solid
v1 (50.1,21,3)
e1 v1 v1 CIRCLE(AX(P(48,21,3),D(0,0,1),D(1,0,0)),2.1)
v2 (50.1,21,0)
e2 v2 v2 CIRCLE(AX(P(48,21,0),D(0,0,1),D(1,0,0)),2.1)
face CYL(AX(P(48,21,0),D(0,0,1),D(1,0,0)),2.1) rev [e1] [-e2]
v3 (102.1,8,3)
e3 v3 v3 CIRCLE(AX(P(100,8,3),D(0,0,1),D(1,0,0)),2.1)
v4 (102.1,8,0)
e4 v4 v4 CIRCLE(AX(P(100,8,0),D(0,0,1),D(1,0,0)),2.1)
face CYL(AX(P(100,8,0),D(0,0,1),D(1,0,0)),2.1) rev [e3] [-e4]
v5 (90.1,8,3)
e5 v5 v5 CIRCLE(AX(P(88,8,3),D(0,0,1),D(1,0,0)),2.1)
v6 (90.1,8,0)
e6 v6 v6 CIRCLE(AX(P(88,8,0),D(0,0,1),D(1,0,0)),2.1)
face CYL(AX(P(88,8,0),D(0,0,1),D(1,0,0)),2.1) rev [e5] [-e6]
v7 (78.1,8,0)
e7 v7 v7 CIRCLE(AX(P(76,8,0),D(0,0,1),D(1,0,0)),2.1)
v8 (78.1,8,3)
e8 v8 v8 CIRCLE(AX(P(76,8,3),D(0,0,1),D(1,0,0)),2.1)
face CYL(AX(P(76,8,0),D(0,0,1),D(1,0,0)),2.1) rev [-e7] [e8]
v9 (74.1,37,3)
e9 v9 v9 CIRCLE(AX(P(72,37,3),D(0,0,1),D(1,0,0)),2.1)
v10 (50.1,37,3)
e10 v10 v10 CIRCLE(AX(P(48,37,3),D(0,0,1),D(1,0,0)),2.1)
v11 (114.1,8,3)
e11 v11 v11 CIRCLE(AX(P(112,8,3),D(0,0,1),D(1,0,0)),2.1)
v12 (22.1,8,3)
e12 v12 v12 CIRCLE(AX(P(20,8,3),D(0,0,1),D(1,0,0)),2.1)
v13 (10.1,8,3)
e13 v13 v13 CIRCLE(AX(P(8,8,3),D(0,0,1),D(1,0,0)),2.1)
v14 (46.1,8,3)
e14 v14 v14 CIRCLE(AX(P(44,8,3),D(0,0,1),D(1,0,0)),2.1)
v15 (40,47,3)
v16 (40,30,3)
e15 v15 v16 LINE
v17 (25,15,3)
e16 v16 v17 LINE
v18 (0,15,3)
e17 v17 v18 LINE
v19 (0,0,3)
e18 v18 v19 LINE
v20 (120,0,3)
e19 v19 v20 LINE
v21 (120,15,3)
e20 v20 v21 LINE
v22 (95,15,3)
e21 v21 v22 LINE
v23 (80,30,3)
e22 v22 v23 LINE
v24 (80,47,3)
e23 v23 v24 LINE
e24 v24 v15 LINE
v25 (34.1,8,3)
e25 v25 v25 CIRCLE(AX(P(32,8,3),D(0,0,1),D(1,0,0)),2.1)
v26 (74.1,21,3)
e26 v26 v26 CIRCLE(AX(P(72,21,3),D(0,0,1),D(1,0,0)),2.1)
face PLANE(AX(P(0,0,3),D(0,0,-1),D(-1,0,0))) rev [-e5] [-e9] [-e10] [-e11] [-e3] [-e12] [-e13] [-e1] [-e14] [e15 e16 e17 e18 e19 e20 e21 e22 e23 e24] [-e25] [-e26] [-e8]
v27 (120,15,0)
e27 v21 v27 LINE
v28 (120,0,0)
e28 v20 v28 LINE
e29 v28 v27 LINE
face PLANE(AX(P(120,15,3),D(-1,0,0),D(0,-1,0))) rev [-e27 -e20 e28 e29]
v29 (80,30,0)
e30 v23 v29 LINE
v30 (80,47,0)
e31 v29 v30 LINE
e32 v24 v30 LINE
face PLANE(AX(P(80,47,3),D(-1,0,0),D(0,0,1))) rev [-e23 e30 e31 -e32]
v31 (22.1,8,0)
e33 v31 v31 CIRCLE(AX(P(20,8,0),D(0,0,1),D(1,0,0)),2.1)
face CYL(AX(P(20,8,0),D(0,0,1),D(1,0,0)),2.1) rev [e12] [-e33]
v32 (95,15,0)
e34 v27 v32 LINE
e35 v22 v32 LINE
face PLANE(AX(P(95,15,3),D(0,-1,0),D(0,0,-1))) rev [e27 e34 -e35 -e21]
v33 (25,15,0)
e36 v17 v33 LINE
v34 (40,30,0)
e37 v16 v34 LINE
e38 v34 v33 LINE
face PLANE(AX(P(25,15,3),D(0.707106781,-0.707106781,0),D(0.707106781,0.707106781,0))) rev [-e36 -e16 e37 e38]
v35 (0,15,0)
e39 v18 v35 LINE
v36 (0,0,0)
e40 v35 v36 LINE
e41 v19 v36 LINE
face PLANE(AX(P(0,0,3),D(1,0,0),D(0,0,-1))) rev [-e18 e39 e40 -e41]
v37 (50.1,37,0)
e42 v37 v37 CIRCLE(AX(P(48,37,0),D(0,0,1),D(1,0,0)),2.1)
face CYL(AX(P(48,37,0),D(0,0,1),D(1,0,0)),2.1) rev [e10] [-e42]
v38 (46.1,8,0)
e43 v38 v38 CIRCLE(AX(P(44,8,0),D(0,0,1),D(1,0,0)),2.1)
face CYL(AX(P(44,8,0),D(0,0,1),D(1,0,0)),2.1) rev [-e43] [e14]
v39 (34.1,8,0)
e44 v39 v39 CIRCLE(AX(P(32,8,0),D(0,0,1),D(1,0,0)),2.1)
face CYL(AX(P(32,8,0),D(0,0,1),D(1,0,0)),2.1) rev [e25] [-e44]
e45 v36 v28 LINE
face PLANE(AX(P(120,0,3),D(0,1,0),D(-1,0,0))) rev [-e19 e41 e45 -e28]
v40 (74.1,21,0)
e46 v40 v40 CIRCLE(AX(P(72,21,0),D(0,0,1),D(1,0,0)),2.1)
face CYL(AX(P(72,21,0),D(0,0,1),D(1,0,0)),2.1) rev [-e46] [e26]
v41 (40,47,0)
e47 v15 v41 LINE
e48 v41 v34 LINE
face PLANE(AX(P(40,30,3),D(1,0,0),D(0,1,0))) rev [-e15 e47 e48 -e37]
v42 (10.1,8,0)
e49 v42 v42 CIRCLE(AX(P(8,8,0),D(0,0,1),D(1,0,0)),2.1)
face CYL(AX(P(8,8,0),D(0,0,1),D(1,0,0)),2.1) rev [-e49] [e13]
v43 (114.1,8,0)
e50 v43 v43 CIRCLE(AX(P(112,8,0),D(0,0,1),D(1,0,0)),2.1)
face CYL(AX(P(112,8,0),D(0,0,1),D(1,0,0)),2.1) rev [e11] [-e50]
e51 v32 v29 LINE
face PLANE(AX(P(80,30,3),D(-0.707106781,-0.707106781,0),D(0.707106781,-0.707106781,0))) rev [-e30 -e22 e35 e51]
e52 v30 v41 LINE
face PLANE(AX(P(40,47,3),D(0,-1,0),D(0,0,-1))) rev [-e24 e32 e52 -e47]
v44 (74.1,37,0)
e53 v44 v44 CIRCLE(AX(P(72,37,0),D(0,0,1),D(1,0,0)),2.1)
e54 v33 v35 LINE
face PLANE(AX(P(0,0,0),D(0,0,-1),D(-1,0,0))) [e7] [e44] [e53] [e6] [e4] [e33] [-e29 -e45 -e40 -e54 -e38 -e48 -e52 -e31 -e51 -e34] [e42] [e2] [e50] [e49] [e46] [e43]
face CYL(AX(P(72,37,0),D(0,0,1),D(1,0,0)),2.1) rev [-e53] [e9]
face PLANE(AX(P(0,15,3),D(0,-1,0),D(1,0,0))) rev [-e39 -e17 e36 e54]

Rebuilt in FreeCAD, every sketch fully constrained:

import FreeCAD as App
import Part
import Sketcher

V = App.Vector
Q = App.Units.Quantity


def add_polygon(sketch, points):
    """Adds a closed chain of lines whose ends are joined by coincident constraints."""
    first, n = sketch.GeometryCount, len(points)
    for a, b in zip(points, points[1:] + points[:1]):
        sketch.addGeometry(Part.LineSegment(App.Vector(*a, 0), App.Vector(*b, 0)), False)
    for i in range(n):
        sketch.addConstraint(Sketcher.Constraint("Coincident", first + i, 2, first + (i + 1) % n, 1))

doc = App.newDocument("Part")
body = doc.addObject("PartDesign::Body", "Body")

# Sketch on XY plane
sketch1 = body.newObject("Sketcher::SketchObject", "Sketch")
sketch1.AttachmentSupport = (doc.getObject("XY_Plane"), [""])
sketch1.MapMode = "FlatFace"
add_polygon(sketch1, [(0, 15), (0, 0), (120, 0), (120, 15), (95, 15), (80, 30), (80, 47), (40, 47), (40, 30), (25, 15)])  # lines 0-9
sketch1.addConstraint([
    Sketcher.Constraint("Vertical", 0),
    Sketcher.Constraint("Horizontal", 1),
    Sketcher.Constraint("Vertical", 2),
    Sketcher.Constraint("Horizontal", 3),
    Sketcher.Constraint("Vertical", 5),
    Sketcher.Constraint("Horizontal", 6),
    Sketcher.Constraint("Vertical", 7),
    Sketcher.Constraint("Horizontal", 9),
    Sketcher.Constraint("Coincident", 0, 2, -1, 1),
    Sketcher.Constraint("Perpendicular", 4, 8),
    Sketcher.Constraint("Horizontal", 4, 2, 7, 2),
    Sketcher.Constraint("Horizontal", 3, 2, 8, 2),
    Sketcher.Constraint("Equal", 3, 9),
    Sketcher.Constraint("Equal", 4, 8),
    Sketcher.Constraint("DistanceX", 1, 1, 1, 2, Q("120 mm")),
    Sketcher.Constraint("DistanceX", 3, 2, 3, 1, Q("25 mm")),
    Sketcher.Constraint("DistanceX", 6, 2, 6, 1, Q("40 mm")),
    Sketcher.Constraint("DistanceY", 0, 2, 0, 1, Q("15 mm")),
    Sketcher.Constraint("DistanceY", 5, 1, 5, 2, Q("17 mm")),
])
pad1 = body.newObject("PartDesign::Pad", "Pad")
pad1.Profile = sketch1
pad1.Length = 3

# Sketch on XY plane
sketch2 = body.newObject("Sketcher::SketchObject", "Sketch001")
sketch2.AttachmentSupport = (doc.getObject("XY_Plane"), [""])
sketch2.MapMode = "FlatFace"
sketch2.AttachmentOffset = App.Placement(V(0, 0, 3), App.Rotation())
sketch2.addGeometry([
    Part.Circle(V(48, 37, 0), V(0, 0, 1), 2.1),  # 0
    Part.Circle(V(72, 37, 0), V(0, 0, 1), 2.1),  # 1
    Part.Circle(V(48, 21, 0), V(0, 0, 1), 2.1),  # 2
    Part.Circle(V(72, 21, 0), V(0, 0, 1), 2.1),  # 3
    Part.Circle(V(112, 8, 0), V(0, 0, 1), 2.1),  # 4
    Part.Circle(V(76, 8, 0), V(0, 0, 1), 2.1),  # 5
    Part.Circle(V(88, 8, 0), V(0, 0, 1), 2.1),  # 6
    Part.Circle(V(8, 8, 0), V(0, 0, 1), 2.1),  # 7
    Part.Circle(V(20, 8, 0), V(0, 0, 1), 2.1),  # 8
    Part.Circle(V(100, 8, 0), V(0, 0, 1), 2.1),  # 9
    Part.Circle(V(32, 8, 0), V(0, 0, 1), 2.1),  # 10
    Part.Circle(V(44, 8, 0), V(0, 0, 1), 2.1),  # 11
    Part.Circle(V(432, 8, 0), V(0, 0, 1), 2.1),  # 12
    Part.Circle(V(444, 8, 0), V(0, 0, 1), 2.1),  # 13
    Part.Circle(V(524, 8, 0), V(0, 0, 1), 2.1),  # 14
    Part.Circle(V(536, 8, 0), V(0, 0, 1), 2.1),  # 15
    Part.Circle(V(456, 8, 0), V(0, 0, 1), 2.1),  # 16
    Part.Circle(V(468, 8, 0), V(0, 0, 1), 2.1),  # 17
    Part.Circle(V(500, 8, 0), V(0, 0, 1), 2.1),  # 18
    Part.Circle(V(512, 8, 0), V(0, 0, 1), 2.1),  # 19
], False)
sketch2.addConstraint([
    Sketcher.Constraint("Equal", 0, 1),
    Sketcher.Constraint("Equal", 1, 2),
    Sketcher.Constraint("Equal", 2, 3),
    Sketcher.Constraint("Equal", 3, 4),
    Sketcher.Constraint("Equal", 4, 5),
    Sketcher.Constraint("Equal", 5, 6),
    Sketcher.Constraint("Equal", 6, 7),
    Sketcher.Constraint("Equal", 7, 8),
    Sketcher.Constraint("Equal", 8, 9),
    Sketcher.Constraint("Equal", 9, 10),
    Sketcher.Constraint("Equal", 10, 11),
    Sketcher.Constraint("Equal", 11, 12),
    Sketcher.Constraint("Equal", 12, 13),
    Sketcher.Constraint("Equal", 13, 14),
    Sketcher.Constraint("Equal", 14, 15),
    Sketcher.Constraint("Equal", 15, 16),
    Sketcher.Constraint("Equal", 16, 17),
    Sketcher.Constraint("Equal", 17, 18),
    Sketcher.Constraint("Equal", 18, 19),
    Sketcher.Constraint("Horizontal", 0, 3, 1, 3),
    Sketcher.Constraint("Horizontal", 2, 3, 3, 3),
    Sketcher.Constraint("Horizontal", 4, 3, 5, 3),
    Sketcher.Constraint("Horizontal", 5, 3, 6, 3),
    Sketcher.Constraint("Horizontal", 6, 3, 7, 3),
    Sketcher.Constraint("Horizontal", 7, 3, 8, 3),
    Sketcher.Constraint("Horizontal", 8, 3, 9, 3),
    Sketcher.Constraint("Horizontal", 9, 3, 10, 3),
    Sketcher.Constraint("Horizontal", 10, 3, 11, 3),
    Sketcher.Constraint("Horizontal", 11, 3, 12, 3),
    Sketcher.Constraint("Horizontal", 12, 3, 13, 3),
    Sketcher.Constraint("Horizontal", 13, 3, 14, 3),
    Sketcher.Constraint("Horizontal", 14, 3, 15, 3),
    Sketcher.Constraint("Horizontal", 15, 3, 16, 3),
    Sketcher.Constraint("Horizontal", 16, 3, 17, 3),
    Sketcher.Constraint("Horizontal", 17, 3, 18, 3),
    Sketcher.Constraint("Horizontal", 18, 3, 19, 3),
    Sketcher.Constraint("Vertical", 0, 3, 2, 3),
    Sketcher.Constraint("Vertical", 1, 3, 3, 3),
    Sketcher.Constraint("Diameter", 0, Q("4.2 mm")),
    Sketcher.Constraint("DistanceX", -1, 1, 0, 3, Q("48 mm")),
    Sketcher.Constraint("DistanceY", -1, 1, 0, 3, Q("37 mm")),
    Sketcher.Constraint("DistanceX", -1, 1, 1, 3, Q("72 mm")),
    Sketcher.Constraint("DistanceY", -1, 1, 2, 3, Q("21 mm")),
    Sketcher.Constraint("DistanceX", -1, 1, 4, 3, Q("112 mm")),
    Sketcher.Constraint("DistanceY", -1, 1, 4, 3, Q("8 mm")),
    Sketcher.Constraint("DistanceX", -1, 1, 5, 3, Q("76 mm")),
    Sketcher.Constraint("DistanceX", -1, 1, 6, 3, Q("88 mm")),
    Sketcher.Constraint("DistanceX", -1, 1, 7, 3, Q("8 mm")),
    Sketcher.Constraint("DistanceX", -1, 1, 8, 3, Q("20 mm")),
    Sketcher.Constraint("DistanceX", -1, 1, 9, 3, Q("100 mm")),
    Sketcher.Constraint("DistanceX", -1, 1, 10, 3, Q("32 mm")),
    Sketcher.Constraint("DistanceX", -1, 1, 11, 3, Q("44 mm")),
    Sketcher.Constraint("DistanceX", -1, 1, 12, 3, Q("432 mm")),
    Sketcher.Constraint("DistanceX", -1, 1, 13, 3, Q("444 mm")),
    Sketcher.Constraint("DistanceX", -1, 1, 14, 3, Q("524 mm")),
    Sketcher.Constraint("DistanceX", -1, 1, 15, 3, Q("536 mm")),
    Sketcher.Constraint("DistanceX", -1, 1, 16, 3, Q("456 mm")),
    Sketcher.Constraint("DistanceX", -1, 1, 17, 3, Q("468 mm")),
    Sketcher.Constraint("DistanceX", -1, 1, 18, 3, Q("500 mm")),
    Sketcher.Constraint("DistanceX", -1, 1, 19, 3, Q("512 mm")),
])
pocket1 = body.newObject("PartDesign::Pocket", "Pocket")
pocket1.Profile = sketch2
pocket1.Type = "ThroughAll"

doc.recompute()
